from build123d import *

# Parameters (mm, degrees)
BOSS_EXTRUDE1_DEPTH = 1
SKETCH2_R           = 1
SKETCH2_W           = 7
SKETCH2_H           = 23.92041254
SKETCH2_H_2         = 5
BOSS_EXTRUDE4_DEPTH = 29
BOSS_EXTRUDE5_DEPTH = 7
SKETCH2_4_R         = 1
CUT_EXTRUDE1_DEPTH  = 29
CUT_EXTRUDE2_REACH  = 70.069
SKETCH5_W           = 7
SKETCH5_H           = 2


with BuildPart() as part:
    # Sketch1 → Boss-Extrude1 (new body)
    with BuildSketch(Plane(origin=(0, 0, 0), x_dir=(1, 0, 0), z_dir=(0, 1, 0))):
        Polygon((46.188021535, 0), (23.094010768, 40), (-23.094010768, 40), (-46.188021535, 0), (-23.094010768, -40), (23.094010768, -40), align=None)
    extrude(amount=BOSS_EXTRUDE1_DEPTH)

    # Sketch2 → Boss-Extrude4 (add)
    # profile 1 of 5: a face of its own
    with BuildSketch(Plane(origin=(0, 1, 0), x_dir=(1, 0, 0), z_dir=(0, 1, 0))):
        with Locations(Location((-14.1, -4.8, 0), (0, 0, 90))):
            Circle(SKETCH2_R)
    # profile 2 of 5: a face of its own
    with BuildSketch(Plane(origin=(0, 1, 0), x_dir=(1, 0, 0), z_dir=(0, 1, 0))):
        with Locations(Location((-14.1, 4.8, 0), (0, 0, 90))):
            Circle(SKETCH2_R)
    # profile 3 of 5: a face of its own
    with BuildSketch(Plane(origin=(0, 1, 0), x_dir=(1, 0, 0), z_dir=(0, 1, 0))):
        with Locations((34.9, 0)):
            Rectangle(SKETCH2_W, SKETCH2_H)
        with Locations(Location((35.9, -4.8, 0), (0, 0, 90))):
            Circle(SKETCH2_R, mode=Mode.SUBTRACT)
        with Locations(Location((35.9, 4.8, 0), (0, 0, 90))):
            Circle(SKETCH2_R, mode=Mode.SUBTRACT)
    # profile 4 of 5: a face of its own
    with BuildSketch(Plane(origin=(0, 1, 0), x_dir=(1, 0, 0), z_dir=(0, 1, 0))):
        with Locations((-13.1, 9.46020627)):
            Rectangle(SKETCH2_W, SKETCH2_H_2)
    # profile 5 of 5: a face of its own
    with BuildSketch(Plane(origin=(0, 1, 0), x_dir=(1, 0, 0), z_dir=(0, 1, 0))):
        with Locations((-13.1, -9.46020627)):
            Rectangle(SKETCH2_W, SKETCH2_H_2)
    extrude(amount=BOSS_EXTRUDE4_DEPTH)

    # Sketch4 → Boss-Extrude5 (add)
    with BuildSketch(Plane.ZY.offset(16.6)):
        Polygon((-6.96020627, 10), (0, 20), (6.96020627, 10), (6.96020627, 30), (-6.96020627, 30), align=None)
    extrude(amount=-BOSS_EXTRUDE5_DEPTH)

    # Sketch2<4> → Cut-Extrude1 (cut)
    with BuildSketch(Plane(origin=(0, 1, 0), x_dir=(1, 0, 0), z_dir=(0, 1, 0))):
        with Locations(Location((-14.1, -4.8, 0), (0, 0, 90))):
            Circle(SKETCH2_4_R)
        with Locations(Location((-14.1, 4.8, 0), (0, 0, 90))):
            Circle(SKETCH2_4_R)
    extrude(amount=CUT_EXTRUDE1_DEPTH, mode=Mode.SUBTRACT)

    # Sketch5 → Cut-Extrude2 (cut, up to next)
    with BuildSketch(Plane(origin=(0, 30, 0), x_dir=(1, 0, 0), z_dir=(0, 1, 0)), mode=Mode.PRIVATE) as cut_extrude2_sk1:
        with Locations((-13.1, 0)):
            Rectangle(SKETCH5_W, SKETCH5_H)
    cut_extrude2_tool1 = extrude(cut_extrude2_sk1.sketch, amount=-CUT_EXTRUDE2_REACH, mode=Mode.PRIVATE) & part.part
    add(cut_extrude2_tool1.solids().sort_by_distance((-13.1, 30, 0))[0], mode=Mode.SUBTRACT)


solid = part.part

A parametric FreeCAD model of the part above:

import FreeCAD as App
import Part
import Sketcher
from FreeCAD import Vector
Q = App.Units.Quantity


def add_polygon(sketch, points):
    """Adds a closed chain of lines whose ends are joined by coincident constraints."""
    first, n = sketch.GeometryCount, len(points)
    for a, b in zip(points, points[1:] + points[:1]):
        sketch.addGeometry(Part.LineSegment(App.Vector(*a, 0), App.Vector(*b, 0)), False)
    for i in range(n):
        sketch.addConstraint(Sketcher.Constraint("Coincident", first + i, 2, first + (i + 1) % n, 1))

doc = App.newDocument("Part")
body = doc.addObject("PartDesign::Body", "Body")

# Sketch on XZ plane
sketch1 = body.newObject("Sketcher::SketchObject", "Sketch")
sketch1.AttachmentSupport = (doc.getObject("XZ_Plane"), [""])
sketch1.MapMode = "FlatFace"
add_polygon(sketch1, [(46.188022, 0), (23.094011, -40), (-23.094011, -40), (-46.188022, 0), (-23.094011, 40), (23.094011, 40)])  # lines 0-5
sketch1.addConstraint([
    Sketcher.Constraint("Horizontal", 1),
    Sketcher.Constraint("Horizontal", 4),
    Sketcher.Constraint("Symmetric", 0, 2, 3, 2, -1, 1),
    Sketcher.Constraint("Symmetric", 2, 2, 5, 2, -1, 1),
    Sketcher.Constraint("PointOnObject", 2, 2, -1),
    Sketcher.Constraint("Parallel", 2, 5),
    Sketcher.Constraint("Vertical", 1, 2, 3, 2),
    Sketcher.Constraint("Angle", 0, Q("-120 deg")),
    Sketcher.Constraint("DistanceY", 0, 2, -1, 1, Q("40 mm")),
    Sketcher.Constraint("DistanceX", 1, 2, 1, 1, Q("46.188022 mm")),
])
pad1 = body.newObject("PartDesign::Pad", "Pad")
pad1.Profile = sketch1
pad1.Length = 1
pad1.Reversed = True

# Sketch on XZ plane
sketch2 = body.newObject("Sketcher::SketchObject", "Sketch001")
sketch2.AttachmentSupport = (doc.getObject("XZ_Plane"), [""])
sketch2.MapMode = "FlatFace"
sketch2.AttachmentOffset = App.Placement(Vector(0, 0, -1), App.Rotation())
sketch2.addGeometry(Part.Circle(Vector(-14.1, 4.8, 0), Vector(0, 0, 1), 1), False)  # 0
sketch2.addGeometry(Part.Circle(Vector(-14.1, -4.8, 0), Vector(0, 0, 1), 1), False)  # 1
add_polygon(sketch2, [(31.4, -11.960206), (31.4, 11.960206), (38.4, 11.960206), (38.4, -11.960206)])  # lines 2-5
sketch2.addGeometry(Part.Circle(Vector(35.9, 4.8, 0), Vector(0, 0, 1), 1), False)  # 6
sketch2.addGeometry(Part.Circle(Vector(35.9, -4.8, 0), Vector(0, 0, 1), 1), False)  # 7
add_polygon(sketch2, [(-16.6, -11.960206), (-16.6, -6.960206), (-9.6, -6.960206), (-9.6, -11.960206)])  # lines 8-11
add_polygon(sketch2, [(-16.6, 6.960206), (-16.6, 11.960206), (-9.6, 11.960206), (-9.6, 6.960206)])  # lines 12-15
sketch2.addConstraint([
    Sketcher.Constraint("Vertical", 2),
    Sketcher.Constraint("Horizontal", 3),
    Sketcher.Constraint("Vertical", 4),
    Sketcher.Constraint("Horizontal", 5),
    Sketcher.Constraint("Vertical", 8),
    Sketcher.Constraint("Horizontal", 9),
    Sketcher.Constraint("Vertical", 10),
    Sketcher.Constraint("Horizontal", 11),
    Sketcher.Constraint("Vertical", 12),
    Sketcher.Constraint("Horizontal", 13),
    Sketcher.Constraint("Vertical", 14),
    Sketcher.Constraint("Horizontal", 15),
    Sketcher.Constraint("Equal", 0, 1),
    Sketcher.Constraint("Equal", 1, 6),
    Sketcher.Constraint("Equal", 6, 7),
    Sketcher.Constraint("Symmetric", 0, 3, 1, 3, -1),
    Sketcher.Constraint("Symmetric", 6, 3, 7, 3, -1),
    Sketcher.Constraint("Symmetric", 11, 2, 12, 2, -1),
    Sketcher.Constraint("Symmetric", 9, 2, 14, 2, -1),
    Sketcher.Constraint("Horizontal", 0, 3, 6, 3),
    Sketcher.Constraint("Horizontal", 5, 2, 10, 2),
    Sketcher.Constraint("Horizontal", 3, 2, 12, 2),
    Sketcher.Constraint("Equal", 5, 9),
    Sketcher.Constraint("Diameter", 0, Q("2 mm")),
    Sketcher.Constraint("DistanceX", 3, 1, 3, 2, Q("7 mm")),
    Sketcher.Constraint("DistanceY", 8, 1, 8, 2, Q("5 mm")),
    Sketcher.Constraint("DistanceX", 0, 3, 6, 3, Q("50 mm")),
    Sketcher.Constraint("DistanceX", 8, 2, 5, 2, Q("48 mm")),
    Sketcher.Constraint("DistanceX", 0, 3, -1, 1, Q("14.1 mm")),
    Sketcher.Constraint("DistanceY", -1, 1, 0, 3, Q("4.8 mm")),
    Sketcher.Constraint("DistanceX", -1, 1, 2, 2, Q("31.4 mm")),
    Sketcher.Constraint("DistanceY", 2, 1, 2, 2, Q("23.920413 mm")),
])
pad2 = body.newObject("PartDesign::Pad", "Pad001")
pad2.Profile = sketch2
pad2.Length = 29
pad2.Reversed = True

# Sketch on YZ plane
sketch3 = body.newObject("Sketcher::SketchObject", "Sketch002")
sketch3.AttachmentSupport = (doc.getObject("YZ_Plane"), [""])
sketch3.MapMode = "FlatFace"
sketch3.AttachmentOffset = App.Placement(Vector(0, 0, -16.6), App.Rotation())
add_polygon(sketch3, [(10, -6.960206), (20, 0), (10, 6.960206), (30, 6.960206), (30, -6.960206)])  # lines 0-4
sketch3.addConstraint([
    Sketcher.Constraint("Horizontal", 2),
    Sketcher.Constraint("Vertical", 3),
    Sketcher.Constraint("Horizontal", 4),
    Sketcher.Constraint("Symmetric", 1, 2, 4, 2, -1),
    Sketcher.Constraint("PointOnObject", 0, 2, -1),
    Sketcher.Constraint("DistanceX", 2, 1, 2, 2, Q("20 mm")),
    Sketcher.Constraint("DistanceX", -1, 1, 0, 2, Q("20 mm")),
    Sketcher.Constraint("DistanceX", -1, 1, 1, 2, Q("10 mm")),
    Sketcher.Constraint("Distance", 0, Q("12.183779 mm")),
])
pad3 = body.newObject("PartDesign::Pad", "Pad002")
pad3.Profile = sketch3
pad3.Length = 7

# Sketch on XZ plane
sketch4 = body.newObject("Sketcher::SketchObject", "Sketch003")
sketch4.AttachmentSupport = (doc.getObject("XZ_Plane"), [""])
sketch4.MapMode = "FlatFace"
sketch4.AttachmentOffset = App.Placement(Vector(0, 0, -1), App.Rotation())
sketch4.addGeometry([
    Part.Circle(Vector(-14.1, 4.8, 0), Vector(0, 0, 1), 1),
    Part.Circle(Vector(-14.1, -4.8, 0), Vector(0, 0, 1), 1),
], False)
sketch4.addConstraint([
    Sketcher.Constraint("Equal", 0, 1),
    Sketcher.Constraint("Symmetric", 0, 3, 1, 3, -1),
    Sketcher.Constraint("Diameter", 0, Q("2 mm")),
    Sketcher.Constraint("DistanceX", 0, 3, -1, 1, Q("14.1 mm")),
    Sketcher.Constraint("DistanceY", -1, 1, 0, 3, Q("4.8 mm")),
])
pocket1 = body.newObject("PartDesign::Pocket", "Pocket")
pocket1.Profile = sketch4
pocket1.Length = 29

# Sketch on XZ plane
sketch5 = body.newObject("Sketcher::SketchObject", "Sketch004")
sketch5.AttachmentSupport = (doc.getObject("XZ_Plane"), [""])
sketch5.MapMode = "FlatFace"
sketch5.AttachmentOffset = App.Placement(Vector(0, 0, -30), App.Rotation())
add_polygon(sketch5, [(-16.6, -1), (-16.6, 1), (-9.6, 1), (-9.6, -1)])  # lines 0-3
sketch5.addConstraint([
    Sketcher.Constraint("Vertical", 0),
    Sketcher.Constraint("Horizontal", 1),
    Sketcher.Constraint("Vertical", 2),
    Sketcher.Constraint("Horizontal", 3),
    Sketcher.Constraint("DistanceX", 1, 1, 1, 2, Q("7 mm")),
    Sketcher.Constraint("DistanceY", 0, 1, 0, 2, Q("2 mm")),
    Sketcher.Constraint("DistanceY", -1, 1, 0, 2, Q("1 mm")),
    Sketcher.Constraint("DistanceX", 0, 2, -1, 1, Q("16.6 mm")),
])
pocket2 = body.newObject("PartDesign::Pocket", "Pocket001")
pocket2.Profile = sketch5
pocket2.Length = 11.436739
pocket2.Reversed = True

doc.recompute()
